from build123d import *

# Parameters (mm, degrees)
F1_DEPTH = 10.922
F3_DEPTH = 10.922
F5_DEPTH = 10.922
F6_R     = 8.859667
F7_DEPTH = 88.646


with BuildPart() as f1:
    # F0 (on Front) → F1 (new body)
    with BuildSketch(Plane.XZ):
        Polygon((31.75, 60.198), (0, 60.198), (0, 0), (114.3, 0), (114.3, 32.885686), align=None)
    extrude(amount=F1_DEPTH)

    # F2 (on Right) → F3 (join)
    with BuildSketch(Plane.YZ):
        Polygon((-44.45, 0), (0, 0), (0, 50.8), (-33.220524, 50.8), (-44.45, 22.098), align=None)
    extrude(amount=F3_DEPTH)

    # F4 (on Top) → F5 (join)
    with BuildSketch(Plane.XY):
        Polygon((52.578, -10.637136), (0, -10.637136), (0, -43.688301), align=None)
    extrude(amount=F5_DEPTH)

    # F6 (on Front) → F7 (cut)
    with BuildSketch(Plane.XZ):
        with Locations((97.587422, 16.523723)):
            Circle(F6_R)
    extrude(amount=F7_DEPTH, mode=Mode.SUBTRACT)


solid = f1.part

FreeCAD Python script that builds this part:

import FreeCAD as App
import Part
import Sketcher
Q = App.Units.Quantity

doc = App.newDocument("Part")
body = doc.addObject("PartDesign::Body", "Body")

sketch1 = body.newObject("Sketcher::SketchObject", "Sketch")
sketch1.AttachmentSupport = (doc.getObject("XZ_Plane"), [""])
sketch1.MapMode = "FlatFace"
sketch1.addGeometry([
    Part.LineSegment(App.Vector(31.75, 60.198, 0), App.Vector(0, 60.198, 0)),
    Part.LineSegment(App.Vector(0, 60.198, 0), App.Vector(0, 0, 0)),
    Part.LineSegment(App.Vector(0, 0, 0), App.Vector(114.3, 0, 0)),
    Part.LineSegment(App.Vector(114.3, 0, 0), App.Vector(114.3, 32.885686, 0)),
    Part.LineSegment(App.Vector(114.3, 32.885686, 0), App.Vector(31.75, 60.198, 0)),
], False)
sketch1.addConstraint([
    Sketcher.Constraint("Coincident", 0, 2, 1, 1),
    Sketcher.Constraint("Coincident", 1, 2, 2, 1),
    Sketcher.Constraint("Coincident", 2, 2, 3, 1),
    Sketcher.Constraint("Coincident", 3, 2, 4, 1),
    Sketcher.Constraint("Coincident", 4, 2, 0, 1),
    Sketcher.Constraint("Horizontal", 0),
    Sketcher.Constraint("Vertical", 1),
    Sketcher.Constraint("Horizontal", 2),
    Sketcher.Constraint("Vertical", 3),
    Sketcher.Constraint("Coincident", 1, 2, -1, 1),
    Sketcher.Constraint("DistanceX", 2, 1, 2, 2, Q("4.5 in")),
    Sketcher.Constraint("DistanceX", 0, 2, 0, 1, Q("1.25 in")),
    Sketcher.Constraint("DistanceY", 1, 2, 1, 1, Q("2.37 in")),
    Sketcher.Constraint("DistanceY", 3, 1, 3, 2, Q("32.885686 mm")),
])
pad1 = body.newObject("PartDesign::Pad", "Pad")
pad1.Profile = sketch1
pad1.Length = Q("0.43 in")

sketch2 = body.newObject("Sketcher::SketchObject", "Sketch001")
sketch2.AttachmentSupport = (doc.getObject("YZ_Plane"), [""])
sketch2.MapMode = "FlatFace"
sketch2.addGeometry([
    Part.LineSegment(App.Vector(-44.45, 0, 0), App.Vector(0, 0, 0)),
    Part.LineSegment(App.Vector(0, 0, 0), App.Vector(0, 50.8, 0)),
    Part.LineSegment(App.Vector(0, 50.8, 0), App.Vector(-33.220524, 50.8, 0)),
    Part.LineSegment(App.Vector(-33.220524, 50.8, 0), App.Vector(-44.45, 22.098, 0)),
    Part.LineSegment(App.Vector(-44.45, 22.098, 0), App.Vector(-44.45, 0, 0)),
], False)
sketch2.addConstraint([
    Sketcher.Constraint("Coincident", 0, 2, 1, 1),
    Sketcher.Constraint("Coincident", 1, 2, 2, 1),
    Sketcher.Constraint("Coincident", 2, 2, 3, 1),
    Sketcher.Constraint("Coincident", 3, 2, 4, 1),
    Sketcher.Constraint("Coincident", 4, 2, 0, 1),
    Sketcher.Constraint("Horizontal", 0),
    Sketcher.Constraint("Vertical", 1),
    Sketcher.Constraint("Horizontal", 2),
    Sketcher.Constraint("Vertical", 4),
    Sketcher.Constraint("Coincident", 0, 2, -1, 1),
    Sketcher.Constraint("DistanceY", 1, 1, 1, 2, Q("2 in")),
    Sketcher.Constraint("DistanceX", 0, 1, 0, 2, Q("1.75 in")),
    Sketcher.Constraint("DistanceY", 4, 2, 4, 1, Q("0.87 in")),
    Sketcher.Constraint("DistanceX", 2, 2, 2, 1, Q("33.220524 mm")),
])
pad2 = body.newObject("PartDesign::Pad", "Pad001")
pad2.Profile = sketch2
pad2.Length = Q("0.43 in")

sketch3 = body.newObject("Sketcher::SketchObject", "Sketch002")
sketch3.AttachmentSupport = (doc.getObject("XY_Plane"), [""])
sketch3.MapMode = "FlatFace"
sketch3.addGeometry([
    Part.LineSegment(App.Vector(52.578, -10.637136, 0), App.Vector(0, -10.637136, 0)),
    Part.LineSegment(App.Vector(0, -10.637136, 0), App.Vector(0, -43.688301, 0)),
    Part.LineSegment(App.Vector(0, -43.688301, 0), App.Vector(52.578, -10.637136, 0)),
], False)
sketch3.addConstraint([
    Sketcher.Constraint("Coincident", 0, 2, 1, 1),
    Sketcher.Constraint("Coincident", 1, 2, 2, 1),
    Sketcher.Constraint("Coincident", 2, 2, 0, 1),
    Sketcher.Constraint("Horizontal", 0),
    Sketcher.Constraint("Vertical", 1),
    Sketcher.Constraint("PointOnObject", 0, 2, -2),
    Sketcher.Constraint("DistanceX", 0, 2, 0, 1, Q("2.07 in")),
    Sketcher.Constraint("DistanceY", 1, 2, -1, 1, Q("43.688301 mm")),
    Sketcher.Constraint("DistanceY", 1, 2, 1, 1, Q("33.051165 mm")),
])
pad3 = body.newObject("PartDesign::Pad", "Pad002")
pad3.Profile = sketch3
pad3.Length = Q("0.43 in")

sketch4 = body.newObject("Sketcher::SketchObject", "Sketch003")
sketch4.AttachmentSupport = (doc.getObject("XZ_Plane"), [""])
sketch4.MapMode = "FlatFace"
sketch4.addGeometry(Part.Circle(App.Vector(97.587422, 16.523723, 0), App.Vector(0, 0, 1), 8.859667), False)
sketch4.addConstraint([
    Sketcher.Constraint("Diameter", 0, Q("17.719334 mm")),
    Sketcher.Constraint("DistanceX", -1, 1, 0, 3, Q("97.587422 mm")),
    Sketcher.Constraint("DistanceY", -1, 1, 0, 3, Q("16.523723 mm")),
])
pocket1 = body.newObject("PartDesign::Pocket", "Pocket")
pocket1.Profile = sketch4
pocket1.Length = Q("3.49 in")
pocket1.Reversed = True

doc.recompute()
